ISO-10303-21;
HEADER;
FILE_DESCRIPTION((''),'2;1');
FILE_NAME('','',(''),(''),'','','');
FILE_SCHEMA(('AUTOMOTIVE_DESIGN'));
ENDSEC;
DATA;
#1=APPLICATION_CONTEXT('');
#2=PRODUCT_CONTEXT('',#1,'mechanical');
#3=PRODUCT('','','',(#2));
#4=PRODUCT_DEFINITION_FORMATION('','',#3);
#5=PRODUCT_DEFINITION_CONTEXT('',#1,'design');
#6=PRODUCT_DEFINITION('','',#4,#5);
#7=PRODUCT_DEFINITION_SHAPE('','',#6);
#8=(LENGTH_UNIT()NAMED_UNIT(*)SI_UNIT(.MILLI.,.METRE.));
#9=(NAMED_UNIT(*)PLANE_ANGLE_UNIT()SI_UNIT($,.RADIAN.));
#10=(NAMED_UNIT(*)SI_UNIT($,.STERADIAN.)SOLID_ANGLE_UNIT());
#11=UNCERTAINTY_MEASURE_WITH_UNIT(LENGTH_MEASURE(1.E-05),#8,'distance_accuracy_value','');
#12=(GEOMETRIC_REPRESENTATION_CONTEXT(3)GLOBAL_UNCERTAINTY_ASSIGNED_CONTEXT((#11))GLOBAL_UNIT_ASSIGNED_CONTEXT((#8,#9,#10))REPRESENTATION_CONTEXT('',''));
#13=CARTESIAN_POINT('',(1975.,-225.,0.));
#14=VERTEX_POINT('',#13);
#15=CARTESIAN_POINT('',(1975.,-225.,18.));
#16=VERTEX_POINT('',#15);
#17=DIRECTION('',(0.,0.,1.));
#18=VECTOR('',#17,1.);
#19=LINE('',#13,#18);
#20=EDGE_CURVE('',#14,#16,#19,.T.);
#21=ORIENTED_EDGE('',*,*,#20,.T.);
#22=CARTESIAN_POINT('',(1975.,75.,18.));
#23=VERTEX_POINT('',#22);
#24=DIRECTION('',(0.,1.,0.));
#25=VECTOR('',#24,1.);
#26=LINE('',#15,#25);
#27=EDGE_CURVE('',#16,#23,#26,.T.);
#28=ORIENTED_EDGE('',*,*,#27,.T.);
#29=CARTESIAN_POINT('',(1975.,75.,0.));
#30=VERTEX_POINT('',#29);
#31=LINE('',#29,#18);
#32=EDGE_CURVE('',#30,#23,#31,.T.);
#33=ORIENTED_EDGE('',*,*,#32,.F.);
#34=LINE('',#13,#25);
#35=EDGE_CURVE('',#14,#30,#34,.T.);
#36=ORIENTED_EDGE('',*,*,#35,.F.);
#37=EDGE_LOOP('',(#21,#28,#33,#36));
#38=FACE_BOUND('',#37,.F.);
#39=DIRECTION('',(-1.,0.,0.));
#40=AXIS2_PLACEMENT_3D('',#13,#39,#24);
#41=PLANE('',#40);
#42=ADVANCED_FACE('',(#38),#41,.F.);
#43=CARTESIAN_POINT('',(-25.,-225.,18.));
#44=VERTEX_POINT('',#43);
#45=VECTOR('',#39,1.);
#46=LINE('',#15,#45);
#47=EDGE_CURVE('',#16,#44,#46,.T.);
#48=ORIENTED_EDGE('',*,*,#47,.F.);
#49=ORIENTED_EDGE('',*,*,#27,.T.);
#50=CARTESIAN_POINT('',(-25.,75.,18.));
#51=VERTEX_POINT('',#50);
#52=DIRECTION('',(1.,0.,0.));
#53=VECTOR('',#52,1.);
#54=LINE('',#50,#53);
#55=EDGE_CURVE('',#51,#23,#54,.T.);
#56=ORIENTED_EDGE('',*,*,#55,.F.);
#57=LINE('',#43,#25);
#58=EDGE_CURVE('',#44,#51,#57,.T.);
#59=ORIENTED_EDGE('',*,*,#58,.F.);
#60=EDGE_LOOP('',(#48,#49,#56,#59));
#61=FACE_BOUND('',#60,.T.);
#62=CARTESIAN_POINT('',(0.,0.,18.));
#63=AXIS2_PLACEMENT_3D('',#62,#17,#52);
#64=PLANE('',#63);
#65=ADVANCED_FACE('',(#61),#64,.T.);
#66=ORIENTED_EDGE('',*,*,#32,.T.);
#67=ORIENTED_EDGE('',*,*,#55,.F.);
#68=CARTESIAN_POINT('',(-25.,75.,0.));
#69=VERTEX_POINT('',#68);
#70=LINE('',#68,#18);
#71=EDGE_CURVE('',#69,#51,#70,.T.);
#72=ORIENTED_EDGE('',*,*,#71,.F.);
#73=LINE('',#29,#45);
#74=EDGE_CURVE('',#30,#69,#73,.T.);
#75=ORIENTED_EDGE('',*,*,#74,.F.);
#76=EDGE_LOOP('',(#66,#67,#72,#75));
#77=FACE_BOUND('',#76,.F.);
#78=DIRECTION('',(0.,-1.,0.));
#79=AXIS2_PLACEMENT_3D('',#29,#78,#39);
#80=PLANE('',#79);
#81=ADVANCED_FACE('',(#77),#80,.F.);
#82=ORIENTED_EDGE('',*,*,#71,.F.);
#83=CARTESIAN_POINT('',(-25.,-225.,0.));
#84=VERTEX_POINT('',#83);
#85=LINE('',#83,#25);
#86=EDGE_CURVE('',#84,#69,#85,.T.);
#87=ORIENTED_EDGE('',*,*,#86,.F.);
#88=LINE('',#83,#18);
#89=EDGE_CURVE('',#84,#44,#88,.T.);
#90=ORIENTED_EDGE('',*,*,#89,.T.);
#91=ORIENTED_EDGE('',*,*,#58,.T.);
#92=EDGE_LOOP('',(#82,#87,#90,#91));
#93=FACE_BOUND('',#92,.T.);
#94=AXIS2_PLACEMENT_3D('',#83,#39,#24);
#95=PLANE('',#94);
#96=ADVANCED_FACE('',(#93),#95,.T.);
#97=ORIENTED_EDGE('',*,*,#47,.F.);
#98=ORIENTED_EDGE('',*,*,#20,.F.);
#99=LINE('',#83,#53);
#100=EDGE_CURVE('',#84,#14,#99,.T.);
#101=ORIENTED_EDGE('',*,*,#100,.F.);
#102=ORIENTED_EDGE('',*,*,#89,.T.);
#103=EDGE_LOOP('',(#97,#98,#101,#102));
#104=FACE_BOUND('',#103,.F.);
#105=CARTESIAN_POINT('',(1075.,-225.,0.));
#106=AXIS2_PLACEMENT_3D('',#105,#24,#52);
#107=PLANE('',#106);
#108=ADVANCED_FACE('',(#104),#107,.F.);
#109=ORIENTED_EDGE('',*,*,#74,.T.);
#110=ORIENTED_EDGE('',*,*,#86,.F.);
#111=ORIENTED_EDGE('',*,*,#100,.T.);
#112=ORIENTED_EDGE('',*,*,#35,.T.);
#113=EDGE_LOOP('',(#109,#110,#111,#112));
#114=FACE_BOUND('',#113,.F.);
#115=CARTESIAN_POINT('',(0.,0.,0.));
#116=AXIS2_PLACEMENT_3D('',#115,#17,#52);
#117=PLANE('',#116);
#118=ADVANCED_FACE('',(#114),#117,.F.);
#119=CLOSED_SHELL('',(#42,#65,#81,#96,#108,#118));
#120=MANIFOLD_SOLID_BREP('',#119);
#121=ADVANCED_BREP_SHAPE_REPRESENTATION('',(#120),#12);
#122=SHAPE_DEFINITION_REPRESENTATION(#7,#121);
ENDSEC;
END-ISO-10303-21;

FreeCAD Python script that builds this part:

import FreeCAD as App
import Part
import Sketcher
Q = App.Units.Quantity

doc = App.newDocument("Part")
body = doc.addObject("PartDesign::Body", "Body")

# Sketch on XY plane
sketch1 = doc.addObject("Sketcher::SketchObject", "Sketch")
body.addObject(sketch1)
sketch1.AttachmentSupport = (doc.XY_Plane, [""])
sketch1.MapMode = "FlatFace"
sketch1.addGeometry([
    Part.LineSegment(App.Vector(1975, -225, 0), App.Vector(1975, 75, 0)),
    Part.LineSegment(App.Vector(1975, 75, 0), App.Vector(-25, 75, 0)),
    Part.LineSegment(App.Vector(-25, 75, 0), App.Vector(-25, -225, 0)),
    Part.LineSegment(App.Vector(-25, -225, 0), App.Vector(1975, -225, 0)),
], False)
sketch1.addConstraint([
    Sketcher.Constraint("Coincident", 0, 2, 1, 1),
    Sketcher.Constraint("Coincident", 1, 2, 2, 1),
    Sketcher.Constraint("Coincident", 2, 2, 3, 1),
    Sketcher.Constraint("Coincident", 3, 2, 0, 1),
    Sketcher.Constraint("Vertical", 0),
    Sketcher.Constraint("Horizontal", 1),
    Sketcher.Constraint("Vertical", 2),
    Sketcher.Constraint("Horizontal", 3),
    Sketcher.Constraint("DistanceX", 1, 2, -1, 1, Q("25 mm")),
    Sketcher.Constraint("DistanceX", 1, 2, 1, 1, Q("2000 mm")),
    Sketcher.Constraint("DistanceY", 0, 1, 0, 2, Q("300 mm")),
    Sketcher.Constraint("DistanceY", -1, 1, 0, 2, Q("75 mm")),
])
pad1 = doc.addObject("PartDesign::Pad", "Pad")
body.addObject(pad1)
pad1.Profile = sketch1
pad1.Length = 18

doc.recompute()
